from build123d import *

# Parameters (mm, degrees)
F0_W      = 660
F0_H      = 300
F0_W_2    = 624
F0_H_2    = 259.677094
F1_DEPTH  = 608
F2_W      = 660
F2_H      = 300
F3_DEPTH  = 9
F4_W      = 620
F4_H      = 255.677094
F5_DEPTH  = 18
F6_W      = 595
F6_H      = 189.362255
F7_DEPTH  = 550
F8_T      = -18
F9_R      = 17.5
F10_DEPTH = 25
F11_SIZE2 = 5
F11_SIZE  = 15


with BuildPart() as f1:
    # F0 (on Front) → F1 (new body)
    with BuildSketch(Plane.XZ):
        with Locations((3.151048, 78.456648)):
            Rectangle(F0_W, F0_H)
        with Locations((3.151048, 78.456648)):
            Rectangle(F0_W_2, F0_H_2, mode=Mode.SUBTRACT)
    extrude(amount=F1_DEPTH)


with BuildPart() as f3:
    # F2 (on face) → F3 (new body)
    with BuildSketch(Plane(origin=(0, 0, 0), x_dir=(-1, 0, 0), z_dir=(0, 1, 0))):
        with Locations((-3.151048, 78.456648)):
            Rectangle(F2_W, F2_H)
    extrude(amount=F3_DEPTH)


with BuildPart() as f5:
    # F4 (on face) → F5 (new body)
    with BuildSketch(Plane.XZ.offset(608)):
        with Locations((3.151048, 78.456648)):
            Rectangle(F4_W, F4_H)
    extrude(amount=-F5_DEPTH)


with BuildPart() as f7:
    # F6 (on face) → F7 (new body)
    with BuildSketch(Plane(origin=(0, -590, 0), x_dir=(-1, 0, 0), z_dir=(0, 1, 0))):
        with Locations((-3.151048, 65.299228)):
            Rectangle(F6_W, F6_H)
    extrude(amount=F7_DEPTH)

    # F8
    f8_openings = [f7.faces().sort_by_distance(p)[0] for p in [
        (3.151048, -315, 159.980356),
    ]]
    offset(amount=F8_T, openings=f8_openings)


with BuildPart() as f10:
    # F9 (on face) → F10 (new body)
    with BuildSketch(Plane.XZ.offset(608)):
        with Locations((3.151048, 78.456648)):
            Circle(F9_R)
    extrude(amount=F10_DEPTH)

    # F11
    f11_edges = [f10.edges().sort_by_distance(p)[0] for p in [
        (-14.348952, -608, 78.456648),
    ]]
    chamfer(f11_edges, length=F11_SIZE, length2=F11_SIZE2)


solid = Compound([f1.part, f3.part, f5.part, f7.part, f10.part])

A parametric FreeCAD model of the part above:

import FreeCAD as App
import Part
import Sketcher

V = App.Vector


def edges_at(feature, points):
    """Names of the edges that pass closest to the given points."""
    edges = feature.Shape.Edges
    near = lambda p: min(range(len(edges)), key=lambda i: edges[i].distToShape(Part.Vertex(*p))[0])
    return sorted({f"Edge{near(p) + 1}" for p in points})


def faces_at(feature, points):
    """Names of the faces that lie closest to the given points."""
    faces = feature.Shape.Faces
    near = lambda p: min(range(len(faces)), key=lambda i: faces[i].distToShape(Part.Vertex(*p))[0])
    return sorted({f"Face{near(p) + 1}" for p in points})


def add_polygon(sketch, points):
    """Adds a closed chain of lines whose ends are joined by coincident constraints."""
    first, n = sketch.GeometryCount, len(points)
    for a, b in zip(points, points[1:] + points[:1]):
        sketch.addGeometry(Part.LineSegment(App.Vector(*a, 0), App.Vector(*b, 0)), False)
    for i in range(n):
        sketch.addConstraint(Sketcher.Constraint("Coincident", first + i, 2, first + (i + 1) % n, 1))

doc = App.newDocument("Part")
body = doc.addObject("PartDesign::Body", "Body")

sketch1 = doc.addObject("Sketcher::SketchObject", "Sketch")
body.addObject(sketch1)
sketch1.AttachmentSupport = (doc.XZ_Plane, [""])
sketch1.MapMode = "FlatFace"
add_polygon(sketch1, [(-327, 228), (-327, -72), (333, -72), (333, 228)])
add_polygon(sketch1, [(315, -51), (-309, -51), (-309, 208), (315, 208)])
sketch1.addConstraint([
    Sketcher.Constraint("Vertical", 0),
    Sketcher.Constraint("Horizontal", 1),
    Sketcher.Constraint("Vertical", 2),
    Sketcher.Constraint("Horizontal", 3),
    Sketcher.Constraint("Horizontal", 4),
    Sketcher.Constraint("Vertical", 5),
    Sketcher.Constraint("Horizontal", 6),
    Sketcher.Constraint("Vertical", 7),
    Sketcher.Constraint("DistanceX", 1, 1, 1, 2, 660.0),
    Sketcher.Constraint("DistanceX", 4, 2, 4, 1, 624.0),
    Sketcher.Constraint("DistanceY", 0, 2, 0, 1, 300.0),
    Sketcher.Constraint("DistanceX", 0, 2, 4, 2, 18.0),
    Sketcher.Constraint("DistanceY", 4, 2, -1, 1, 51.381899),
    Sketcher.Constraint("DistanceY", 5, 1, 5, 2, 259.677094),
    Sketcher.Constraint("DistanceX", 0, 2, -1, 1, 326.848952),
    Sketcher.Constraint("DistanceY", 0, 2, -1, 1, 71.543352),
])
pad1 = doc.addObject("PartDesign::Pad", "Pad")
body.addObject(pad1)
pad1.Profile = sketch1
pad1.Length = 608
body2 = doc.addObject("PartDesign::Body", "Body001")

sketch2 = doc.addObject("Sketcher::SketchObject", "Sketch001")
body2.addObject(sketch2)
sketch2.AttachmentSupport = (doc.getObject("XZ_Plane001"), [""])
sketch2.MapMode = "FlatFace"
add_polygon(sketch2, [(333, 228), (333, -72), (-327, -72), (-327, 228)])
sketch2.addConstraint([
    Sketcher.Constraint("Vertical", 0),
    Sketcher.Constraint("Horizontal", 1),
    Sketcher.Constraint("Vertical", 2),
    Sketcher.Constraint("Horizontal", 3),
    Sketcher.Constraint("DistanceX", 1, 2, 1, 1, 660.0),
    Sketcher.Constraint("DistanceY", 0, 2, 0, 1, 300.0),
    Sketcher.Constraint("DistanceX", -1, 1, 0, 2, 333.151048),
    Sketcher.Constraint("DistanceY", 0, 2, -1, 1, 71.543352),
])
pad2 = doc.addObject("PartDesign::Pad", "Pad001")
body2.addObject(pad2)
pad2.Profile = sketch2
pad2.Length = 9
pad2.Reversed = True
body3 = doc.addObject("PartDesign::Body", "Body002")

sketch3 = doc.addObject("Sketcher::SketchObject", "Sketch002")
body3.addObject(sketch3)
sketch3.AttachmentSupport = (doc.getObject("XZ_Plane002"), [""])
sketch3.MapMode = "FlatFace"
sketch3.AttachmentOffset = App.Placement(V(0, 0, 608), App.Rotation())
add_polygon(sketch3, [(-307, 206), (-307, -49), (313, -49), (313, 206)])
sketch3.addConstraint([
    Sketcher.Constraint("Vertical", 0),
    Sketcher.Constraint("Horizontal", 1),
    Sketcher.Constraint("Vertical", 2),
    Sketcher.Constraint("Horizontal", 3),
    Sketcher.Constraint("DistanceX", 1, 1, 1, 2, 620.0),
    Sketcher.Constraint("DistanceY", 0, 2, -1, 1, 49.381899),
    Sketcher.Constraint("DistanceY", 0, 2, 0, 1, 255.677094),
    Sketcher.Constraint("DistanceX", 0, 2, -1, 1, 306.848952),
])
pad3 = doc.addObject("PartDesign::Pad", "Pad002")
body3.addObject(pad3)
pad3.Profile = sketch3
pad3.Length = 18
pad3.Reversed = True
body4 = doc.addObject("PartDesign::Body", "Body003")

sketch4 = doc.addObject("Sketcher::SketchObject", "Sketch003")
body4.addObject(sketch4)
sketch4.AttachmentSupport = (doc.getObject("XZ_Plane003"), [""])
sketch4.MapMode = "FlatFace"
sketch4.AttachmentOffset = App.Placement(V(0, 0, 590), App.Rotation())
add_polygon(sketch4, [(301, 160), (301, -29), (-294, -29), (-294, 160)])
sketch4.addConstraint([
    Sketcher.Constraint("Vertical", 0),
    Sketcher.Constraint("Horizontal", 1),
    Sketcher.Constraint("Vertical", 2),
    Sketcher.Constraint("Horizontal", 3),
    Sketcher.Constraint("DistanceX", 1, 2, 1, 1, 595.0),
    Sketcher.Constraint("DistanceY", 0, 2, -1, 1, 29.381899),
    Sketcher.Constraint("DistanceY", 0, 2, 0, 1, 189.362255),
    Sketcher.Constraint("DistanceX", -1, 1, 0, 2, 300.651048),
])
pad4 = doc.addObject("PartDesign::Pad", "Pad003")
body4.addObject(pad4)
pad4.Profile = sketch4
pad4.Length = 550
pad4.Reversed = True
doc.recompute()

thickness = doc.addObject("PartDesign::Thickness", "Thickness")
body4.addObject(thickness)
thickness.Base = (pad4, faces_at(pad4, [(3.151, -315, 159.98)]))
thickness.Value = 18
thickness.Reversed = True
thickness.Join = "Arc"
body5 = doc.addObject("PartDesign::Body", "Body004")

sketch5 = doc.addObject("Sketcher::SketchObject", "Sketch004")
body5.addObject(sketch5)
sketch5.AttachmentSupport = (doc.getObject("XZ_Plane004"), [""])
sketch5.MapMode = "FlatFace"
sketch5.AttachmentOffset = App.Placement(V(0, 0, 608), App.Rotation())
sketch5.addGeometry(Part.Circle(V(3, 78, 0), V(0, 0, 1), 18), False)
sketch5.addConstraint([
    Sketcher.Constraint("Diameter", 0, 35.0),
    Sketcher.Constraint("DistanceY", -1, 1, 0, 3, 78.456648),
    Sketcher.Constraint("DistanceX", -1, 1, 0, 3, 3.151048),
])
pad5 = doc.addObject("PartDesign::Pad", "Pad004")
body5.addObject(pad5)
pad5.Profile = sketch5
pad5.Length = 25
doc.recompute()

chamfer = doc.addObject("PartDesign::Chamfer", "Chamfer")
body5.addObject(chamfer)
chamfer.Base = (pad5, edges_at(pad5, [(-14.349, -608, 78.457)]))
chamfer.ChamferType = "Two distances"
chamfer.Size = 15
chamfer.Size2 = 5

doc.recompute()
